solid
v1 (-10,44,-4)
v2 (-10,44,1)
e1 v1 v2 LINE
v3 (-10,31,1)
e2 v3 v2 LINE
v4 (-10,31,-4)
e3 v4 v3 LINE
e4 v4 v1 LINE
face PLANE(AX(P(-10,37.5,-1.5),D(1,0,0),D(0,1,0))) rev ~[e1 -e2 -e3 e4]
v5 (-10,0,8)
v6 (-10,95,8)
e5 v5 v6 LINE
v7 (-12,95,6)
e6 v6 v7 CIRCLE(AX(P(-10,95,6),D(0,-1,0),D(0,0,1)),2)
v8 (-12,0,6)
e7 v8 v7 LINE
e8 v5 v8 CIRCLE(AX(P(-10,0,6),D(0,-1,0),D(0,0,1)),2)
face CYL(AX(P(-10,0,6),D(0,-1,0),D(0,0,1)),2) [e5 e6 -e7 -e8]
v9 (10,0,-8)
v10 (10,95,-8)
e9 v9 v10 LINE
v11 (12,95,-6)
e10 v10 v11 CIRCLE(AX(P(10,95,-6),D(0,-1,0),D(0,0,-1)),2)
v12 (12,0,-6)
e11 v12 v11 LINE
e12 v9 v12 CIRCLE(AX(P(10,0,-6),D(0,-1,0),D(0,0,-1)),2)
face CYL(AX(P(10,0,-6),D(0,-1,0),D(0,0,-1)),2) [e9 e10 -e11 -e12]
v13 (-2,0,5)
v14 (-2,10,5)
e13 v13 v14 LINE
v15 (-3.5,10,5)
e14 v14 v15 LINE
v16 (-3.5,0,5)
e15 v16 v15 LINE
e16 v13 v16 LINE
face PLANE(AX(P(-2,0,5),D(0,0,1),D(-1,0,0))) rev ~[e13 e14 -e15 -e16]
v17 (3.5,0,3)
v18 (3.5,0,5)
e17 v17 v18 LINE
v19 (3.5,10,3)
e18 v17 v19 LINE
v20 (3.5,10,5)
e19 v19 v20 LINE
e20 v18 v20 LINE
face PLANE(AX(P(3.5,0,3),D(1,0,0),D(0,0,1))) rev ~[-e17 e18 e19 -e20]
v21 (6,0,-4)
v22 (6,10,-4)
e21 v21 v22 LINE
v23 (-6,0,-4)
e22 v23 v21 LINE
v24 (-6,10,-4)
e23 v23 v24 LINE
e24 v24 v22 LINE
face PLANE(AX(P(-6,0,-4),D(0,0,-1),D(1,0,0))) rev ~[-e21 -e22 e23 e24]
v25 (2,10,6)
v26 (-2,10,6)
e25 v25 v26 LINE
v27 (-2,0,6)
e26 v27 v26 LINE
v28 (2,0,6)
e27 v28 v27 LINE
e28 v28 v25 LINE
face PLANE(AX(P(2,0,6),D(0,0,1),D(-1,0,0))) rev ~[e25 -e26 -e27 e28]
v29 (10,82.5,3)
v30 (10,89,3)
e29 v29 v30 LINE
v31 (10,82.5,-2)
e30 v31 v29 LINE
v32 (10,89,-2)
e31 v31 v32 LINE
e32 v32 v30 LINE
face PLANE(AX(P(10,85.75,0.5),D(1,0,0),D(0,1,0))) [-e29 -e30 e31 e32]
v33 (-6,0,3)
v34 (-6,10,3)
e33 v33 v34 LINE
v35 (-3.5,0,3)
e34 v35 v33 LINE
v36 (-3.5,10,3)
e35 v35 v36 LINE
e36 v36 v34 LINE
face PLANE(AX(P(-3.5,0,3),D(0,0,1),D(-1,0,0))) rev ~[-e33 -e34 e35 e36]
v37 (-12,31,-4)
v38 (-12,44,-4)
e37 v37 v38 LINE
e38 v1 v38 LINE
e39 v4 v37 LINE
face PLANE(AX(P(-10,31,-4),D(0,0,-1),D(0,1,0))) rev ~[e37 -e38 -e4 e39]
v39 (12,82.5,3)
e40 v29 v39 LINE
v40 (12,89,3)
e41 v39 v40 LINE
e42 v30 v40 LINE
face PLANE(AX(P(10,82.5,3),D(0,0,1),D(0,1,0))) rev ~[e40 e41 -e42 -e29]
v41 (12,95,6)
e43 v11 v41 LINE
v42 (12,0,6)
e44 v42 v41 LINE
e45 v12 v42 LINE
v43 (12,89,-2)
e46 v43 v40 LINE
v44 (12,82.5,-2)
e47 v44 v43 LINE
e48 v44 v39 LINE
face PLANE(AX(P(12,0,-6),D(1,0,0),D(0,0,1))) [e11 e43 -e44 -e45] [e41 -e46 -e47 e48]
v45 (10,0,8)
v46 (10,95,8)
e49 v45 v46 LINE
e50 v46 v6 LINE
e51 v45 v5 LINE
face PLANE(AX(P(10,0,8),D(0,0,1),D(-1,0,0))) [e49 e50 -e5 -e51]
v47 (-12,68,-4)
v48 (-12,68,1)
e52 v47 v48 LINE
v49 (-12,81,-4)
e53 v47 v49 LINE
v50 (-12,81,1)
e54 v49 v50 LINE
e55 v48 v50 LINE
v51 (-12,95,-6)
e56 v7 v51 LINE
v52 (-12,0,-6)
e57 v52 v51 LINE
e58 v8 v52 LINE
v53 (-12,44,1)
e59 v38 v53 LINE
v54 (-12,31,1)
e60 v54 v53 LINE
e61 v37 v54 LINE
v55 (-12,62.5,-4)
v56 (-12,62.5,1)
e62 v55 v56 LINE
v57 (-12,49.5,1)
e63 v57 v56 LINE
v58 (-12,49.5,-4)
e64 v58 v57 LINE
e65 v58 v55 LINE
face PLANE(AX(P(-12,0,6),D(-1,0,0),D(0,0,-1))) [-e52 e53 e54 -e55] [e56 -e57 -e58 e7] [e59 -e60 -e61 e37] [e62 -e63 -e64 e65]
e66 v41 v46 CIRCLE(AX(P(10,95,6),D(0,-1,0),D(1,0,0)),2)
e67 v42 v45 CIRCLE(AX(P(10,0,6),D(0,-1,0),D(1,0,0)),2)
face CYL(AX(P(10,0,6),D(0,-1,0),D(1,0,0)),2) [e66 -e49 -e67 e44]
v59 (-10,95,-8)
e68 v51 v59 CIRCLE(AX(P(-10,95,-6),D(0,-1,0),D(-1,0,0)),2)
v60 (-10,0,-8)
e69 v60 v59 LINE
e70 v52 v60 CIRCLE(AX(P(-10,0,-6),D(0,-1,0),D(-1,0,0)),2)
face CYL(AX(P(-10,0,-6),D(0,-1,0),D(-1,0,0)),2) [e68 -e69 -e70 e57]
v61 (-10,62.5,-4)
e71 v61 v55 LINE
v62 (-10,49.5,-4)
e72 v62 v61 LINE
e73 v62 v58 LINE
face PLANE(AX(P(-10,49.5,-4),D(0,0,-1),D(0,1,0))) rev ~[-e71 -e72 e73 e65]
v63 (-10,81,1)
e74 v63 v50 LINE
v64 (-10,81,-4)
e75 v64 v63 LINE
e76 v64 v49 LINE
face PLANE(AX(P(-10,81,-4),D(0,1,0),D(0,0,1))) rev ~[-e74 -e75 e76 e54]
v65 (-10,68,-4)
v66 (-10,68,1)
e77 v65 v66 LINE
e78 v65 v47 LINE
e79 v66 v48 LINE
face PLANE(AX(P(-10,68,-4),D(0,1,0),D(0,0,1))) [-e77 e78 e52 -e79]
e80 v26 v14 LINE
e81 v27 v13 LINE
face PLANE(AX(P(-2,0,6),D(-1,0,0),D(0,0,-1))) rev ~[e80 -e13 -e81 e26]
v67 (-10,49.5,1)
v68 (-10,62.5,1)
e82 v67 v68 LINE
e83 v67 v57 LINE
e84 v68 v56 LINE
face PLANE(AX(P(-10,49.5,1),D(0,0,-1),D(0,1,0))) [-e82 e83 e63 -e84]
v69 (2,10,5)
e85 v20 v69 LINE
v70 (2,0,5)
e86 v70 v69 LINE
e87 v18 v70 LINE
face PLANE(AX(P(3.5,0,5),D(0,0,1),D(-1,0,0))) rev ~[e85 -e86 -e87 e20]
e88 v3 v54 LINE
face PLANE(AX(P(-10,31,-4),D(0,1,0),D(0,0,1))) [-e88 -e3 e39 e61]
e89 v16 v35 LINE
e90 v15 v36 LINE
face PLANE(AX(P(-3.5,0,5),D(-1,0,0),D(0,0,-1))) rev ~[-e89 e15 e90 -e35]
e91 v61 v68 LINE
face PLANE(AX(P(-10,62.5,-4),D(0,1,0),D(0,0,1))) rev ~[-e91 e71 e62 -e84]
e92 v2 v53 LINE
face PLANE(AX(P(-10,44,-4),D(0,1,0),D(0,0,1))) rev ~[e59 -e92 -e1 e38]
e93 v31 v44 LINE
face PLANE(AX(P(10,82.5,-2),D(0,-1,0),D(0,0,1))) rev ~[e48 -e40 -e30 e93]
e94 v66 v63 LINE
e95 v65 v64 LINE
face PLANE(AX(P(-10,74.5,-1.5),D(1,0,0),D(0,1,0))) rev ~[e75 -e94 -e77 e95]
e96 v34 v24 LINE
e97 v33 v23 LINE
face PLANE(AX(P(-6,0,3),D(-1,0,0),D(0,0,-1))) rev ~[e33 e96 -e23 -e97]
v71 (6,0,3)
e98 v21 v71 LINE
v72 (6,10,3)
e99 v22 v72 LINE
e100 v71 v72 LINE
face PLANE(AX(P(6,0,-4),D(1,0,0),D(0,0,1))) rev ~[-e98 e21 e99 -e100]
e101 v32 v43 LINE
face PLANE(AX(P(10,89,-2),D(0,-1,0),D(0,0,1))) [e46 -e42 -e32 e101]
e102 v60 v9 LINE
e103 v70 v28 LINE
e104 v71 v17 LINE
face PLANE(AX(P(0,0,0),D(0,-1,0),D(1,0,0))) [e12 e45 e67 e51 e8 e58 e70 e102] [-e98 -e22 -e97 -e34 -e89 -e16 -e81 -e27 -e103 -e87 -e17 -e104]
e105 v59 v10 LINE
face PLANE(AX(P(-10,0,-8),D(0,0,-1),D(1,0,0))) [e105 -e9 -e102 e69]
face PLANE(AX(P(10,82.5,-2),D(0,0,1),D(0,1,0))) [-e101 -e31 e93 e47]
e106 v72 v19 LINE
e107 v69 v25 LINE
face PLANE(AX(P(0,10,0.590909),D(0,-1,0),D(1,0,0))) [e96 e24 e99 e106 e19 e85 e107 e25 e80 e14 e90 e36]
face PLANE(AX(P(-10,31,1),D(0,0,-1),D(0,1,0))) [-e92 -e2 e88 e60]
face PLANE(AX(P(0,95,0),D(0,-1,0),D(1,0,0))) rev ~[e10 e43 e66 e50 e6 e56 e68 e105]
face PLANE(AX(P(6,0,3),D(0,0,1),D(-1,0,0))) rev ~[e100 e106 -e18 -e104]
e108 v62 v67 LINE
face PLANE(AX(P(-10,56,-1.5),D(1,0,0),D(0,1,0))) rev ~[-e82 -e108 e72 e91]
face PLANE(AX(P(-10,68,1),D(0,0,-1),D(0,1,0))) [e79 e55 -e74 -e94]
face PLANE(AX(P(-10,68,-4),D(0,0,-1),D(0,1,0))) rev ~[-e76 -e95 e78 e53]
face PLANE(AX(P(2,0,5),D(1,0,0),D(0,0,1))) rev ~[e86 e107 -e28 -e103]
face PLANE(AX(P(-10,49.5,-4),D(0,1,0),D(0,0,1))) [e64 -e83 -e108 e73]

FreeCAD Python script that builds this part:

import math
import FreeCAD as App
import Part
import Sketcher

V = App.Vector
Q = App.Units.Quantity


def add_polygon(sketch, points):
    """Adds a closed chain of lines whose ends are joined by coincident constraints."""
    first, n = sketch.GeometryCount, len(points)
    for a, b in zip(points, points[1:] + points[:1]):
        sketch.addGeometry(Part.LineSegment(App.Vector(*a, 0), App.Vector(*b, 0)), False)
    for i in range(n):
        sketch.addConstraint(Sketcher.Constraint("Coincident", first + i, 2, first + (i + 1) % n, 1))

doc = App.newDocument("Part")
params = doc.addObject("Spreadsheet::Sheet", "Params")
for row, (alias, value) in enumerate([
    ("sketch1_radius", "2 mm"),
    ("sketch1_width", "20 mm"),
    ("sketch1_height", "12 mm"),
    ("pad1_length", "95 mm"),
    ("sketch2_width", "4 mm"),
    ("sketch2_width2", "12 mm"),
    ("sketch2_height", "1 mm"),
    ("sketch2_height2", "2 mm"),
    ("sketch2_height3", "7 mm"),
    ("pocket1_length", "10 mm"),
    ("sketch3_height", "5 mm"),
    ("sketch3_width", "6.5 mm"),
    ("pocket2_length", "2 mm"),
    ("sketch4_width", "13 mm"),
    ("sketch4_height", "5 mm"),
    ("pocket3_length", "2 mm"),
], start=1):
    params.set(f"A{row}", alias)
    params.set(f"B{row}", "=" + value)
    params.setAlias(f"B{row}", alias)

body = doc.addObject("PartDesign::Body", "Body")

# Sketch on XZ plane
sketch1 = doc.addObject("Sketcher::SketchObject", "Sketch")
body.addObject(sketch1)
sketch1.AttachmentSupport = (doc.XZ_Plane, [""])
sketch1.MapMode = "FlatFace"
sketch1.addGeometry(Part.LineSegment(V(-10, -8, 0), V(10, -8, 0)), False)
sketch1.addGeometry(Part.ArcOfCircle(Part.Circle(V(10, -6, 0), V(0, 0, 1), 2), math.radians(-90), math.radians(0)), False)
sketch1.addGeometry(Part.LineSegment(V(12, -6, 0), V(12, 6, 0)), False)
sketch1.addGeometry(Part.ArcOfCircle(Part.Circle(V(10, 6, 0), V(0, 0, 1), 2), math.radians(0), math.radians(90)), False)
sketch1.addGeometry(Part.LineSegment(V(10, 8, 0), V(-10, 8, 0)), False)
sketch1.addGeometry(Part.ArcOfCircle(Part.Circle(V(-10, 6, 0), V(0, 0, 1), 2), math.radians(90), math.radians(180)), False)
sketch1.addGeometry(Part.LineSegment(V(-12, 6, 0), V(-12, -6, 0)), False)
sketch1.addGeometry(Part.ArcOfCircle(Part.Circle(V(-10, -6, 0), V(0, 0, 1), 2), math.radians(180), math.radians(270)), False)
sketch1.addConstraint(Sketcher.Constraint("Tangent", 0, 2, 1, 1))
sketch1.addConstraint(Sketcher.Constraint("Tangent", 1, 2, 2, 1))
sketch1.addConstraint(Sketcher.Constraint("Tangent", 2, 2, 3, 1))
sketch1.addConstraint(Sketcher.Constraint("Tangent", 3, 2, 4, 1))
sketch1.addConstraint(Sketcher.Constraint("Tangent", 4, 2, 5, 1))
sketch1.addConstraint(Sketcher.Constraint("Tangent", 5, 2, 6, 1))
sketch1.addConstraint(Sketcher.Constraint("Tangent", 6, 2, 7, 1))
sketch1.addConstraint(Sketcher.Constraint("Tangent", 7, 2, 0, 1))
sketch1.addConstraint(Sketcher.Constraint("Horizontal", 0))
sketch1.addConstraint(Sketcher.Constraint("Vertical", 2))
sketch1.addConstraint(Sketcher.Constraint("Horizontal", 4))
sketch1.addConstraint(Sketcher.Constraint("Vertical", 6))
sketch1.addConstraint(Sketcher.Constraint("Equal", 1, 3))
sketch1.addConstraint(Sketcher.Constraint("Equal", 3, 5))
sketch1.addConstraint(Sketcher.Constraint("Equal", 5, 7))
sketch1.addConstraint(Sketcher.Constraint("Symmetric", 1, 3, 5, 3, -1, 1))
sketch1.addConstraint(Sketcher.Constraint("Radius", 1, Q("2 mm")))
sketch1.addConstraint(Sketcher.Constraint("DistanceX", 0, 1, 0, 2, Q("20 mm")))
sketch1.addConstraint(Sketcher.Constraint("DistanceY", 2, 1, 2, 2, Q("12 mm")))
sketch1.setExpression("Constraints[16]", "Params.sketch1_radius")
sketch1.setExpression("Constraints[17]", "Params.sketch1_width")
sketch1.setExpression("Constraints[18]", "Params.sketch1_height")
pad1 = doc.addObject("PartDesign::Pad", "Pad")
body.addObject(pad1)
pad1.Profile = sketch1
pad1.setExpression("Length", "Params.pad1_length")
pad1.Reversed = True

# Sketch on XZ plane
sketch2 = doc.addObject("Sketcher::SketchObject", "Sketch001")
body.addObject(sketch2)
sketch2.AttachmentSupport = (doc.XZ_Plane, [""])
sketch2.MapMode = "FlatFace"
add_polygon(sketch2, [(2, 6), (-2, 6), (-2, 5), (-3.5, 5), (-3.5, 3), (-6, 3), (-6, -4), (6, -4), (6, 3), (3.5, 3), (3.5, 5), (2, 5)])  # lines 0-11
sketch2.addConstraint(Sketcher.Constraint("Horizontal", 0))
sketch2.addConstraint(Sketcher.Constraint("Vertical", 1))
sketch2.addConstraint(Sketcher.Constraint("Horizontal", 2))
sketch2.addConstraint(Sketcher.Constraint("Vertical", 3))
sketch2.addConstraint(Sketcher.Constraint("Horizontal", 4))
sketch2.addConstraint(Sketcher.Constraint("Vertical", 5))
sketch2.addConstraint(Sketcher.Constraint("Horizontal", 6))
sketch2.addConstraint(Sketcher.Constraint("Vertical", 7))
sketch2.addConstraint(Sketcher.Constraint("Horizontal", 8))
sketch2.addConstraint(Sketcher.Constraint("Vertical", 9))
sketch2.addConstraint(Sketcher.Constraint("Horizontal", 10))
sketch2.addConstraint(Sketcher.Constraint("Vertical", 11))
sketch2.addConstraint(Sketcher.Constraint("Symmetric", 4, 2, 7, 2, -2))
sketch2.addConstraint(Sketcher.Constraint("Symmetric", 2, 2, 9, 2, -2))
sketch2.addConstraint(Sketcher.Constraint("Equal", 2, 10))
sketch2.addConstraint(Sketcher.Constraint("DistanceX", 0, 2, 0, 1, Q("4 mm")))
sketch2.addConstraint(Sketcher.Constraint("DistanceX", 6, 1, 6, 2, Q("12 mm")))
sketch2.addConstraint(Sketcher.Constraint("DistanceY", 1, 2, 1, 1, Q("1 mm")))
sketch2.addConstraint(Sketcher.Constraint("DistanceY", 3, 2, 3, 1, Q("2 mm")))
sketch2.addConstraint(Sketcher.Constraint("DistanceY", 5, 2, 5, 1, Q("7 mm")))
sketch2.addConstraint(Sketcher.Constraint("DistanceX", 2, 2, 2, 1, Q("1.5 mm")))
sketch2.addConstraint(Sketcher.Constraint("DistanceY", -1, 1, 0, 2, Q("6 mm")))
sketch2.setExpression("Constraints[27]", "Params.sketch2_width")
sketch2.setExpression("Constraints[28]", "Params.sketch2_width2")
sketch2.setExpression("Constraints[29]", "Params.sketch2_height")
sketch2.setExpression("Constraints[30]", "Params.sketch2_height2")
sketch2.setExpression("Constraints[31]", "Params.sketch2_height3")
pocket1 = doc.addObject("PartDesign::Pocket", "Pocket")
body.addObject(pocket1)
pocket1.Profile = sketch2
pocket1.setExpression("Length", "Params.pocket1_length")

# Sketch on YZ plane
sketch3 = doc.addObject("Sketcher::SketchObject", "Sketch002")
body.addObject(sketch3)
sketch3.AttachmentSupport = (doc.YZ_Plane, [""])
sketch3.MapMode = "FlatFace"
sketch3.AttachmentOffset = App.Placement(V(0, 0, 10), App.Rotation())
add_polygon(sketch3, [(82, 3), (82, -2), (89, -2), (89, 3)])  # lines 0-3
sketch3.addConstraint(Sketcher.Constraint("Vertical", 0))
sketch3.addConstraint(Sketcher.Constraint("Horizontal", 1))
sketch3.addConstraint(Sketcher.Constraint("Vertical", 2))
sketch3.addConstraint(Sketcher.Constraint("Horizontal", 3))
sketch3.addConstraint(Sketcher.Constraint("DistanceY", 0, 2, 0, 1, Q("5 mm")))
sketch3.addConstraint(Sketcher.Constraint("DistanceX", 1, 1, 1, 2, Q("6.5 mm")))
sketch3.addConstraint(Sketcher.Constraint("DistanceY", 0, 2, -1, 1, Q("2 mm")))
sketch3.addConstraint(Sketcher.Constraint("DistanceX", -1, 1, 1, 2, Q("89 mm")))
sketch3.setExpression("Constraints[8]", "Params.sketch3_height")
sketch3.setExpression("Constraints[9]", "Params.sketch3_width")
pocket2 = doc.addObject("PartDesign::Pocket", "Pocket001")
body.addObject(pocket2)
pocket2.Profile = sketch3
pocket2.setExpression("Length", "Params.pocket2_length")
pocket2.Reversed = True

# Sketch on YZ plane
sketch4 = doc.addObject("Sketcher::SketchObject", "Sketch003")
body.addObject(sketch4)
sketch4.AttachmentSupport = (doc.YZ_Plane, [""])
sketch4.MapMode = "FlatFace"
sketch4.AttachmentOffset = App.Placement(V(0, 0, -10), App.Rotation())
add_polygon(sketch4, [(68, 1), (68, -4), (81, -4), (81, 1)])  # lines 0-3
add_polygon(sketch4, [(50, 1), (50, -4), (62, -4), (62, 1)])  # lines 4-7
add_polygon(sketch4, [(31, 1), (31, -4), (44, -4), (44, 1)])  # lines 8-11
sketch4.addConstraint(Sketcher.Constraint("Vertical", 0))
sketch4.addConstraint(Sketcher.Constraint("Horizontal", 1))
sketch4.addConstraint(Sketcher.Constraint("Vertical", 2))
sketch4.addConstraint(Sketcher.Constraint("Horizontal", 3))
sketch4.addConstraint(Sketcher.Constraint("Vertical", 4))
sketch4.addConstraint(Sketcher.Constraint("Horizontal", 5))
sketch4.addConstraint(Sketcher.Constraint("Vertical", 6))
sketch4.addConstraint(Sketcher.Constraint("Horizontal", 7))
sketch4.addConstraint(Sketcher.Constraint("Vertical", 8))
sketch4.addConstraint(Sketcher.Constraint("Horizontal", 9))
sketch4.addConstraint(Sketcher.Constraint("Vertical", 10))
sketch4.addConstraint(Sketcher.Constraint("Horizontal", 11))
sketch4.addConstraint(Sketcher.Constraint("Horizontal", 1, 2, 4, 2))
sketch4.addConstraint(Sketcher.Constraint("Horizontal", 3, 2, 6, 2))
sketch4.addConstraint(Sketcher.Constraint("Horizontal", 5, 2, 8, 2))
sketch4.addConstraint(Sketcher.Constraint("Horizontal", 7, 2, 10, 2))
sketch4.addConstraint(Sketcher.Constraint("Equal", 3, 5))
sketch4.addConstraint(Sketcher.Constraint("Equal", 7, 9))
sketch4.addConstraint(Sketcher.Constraint("DistanceX", 1, 1, 1, 2, Q("13 mm")))
sketch4.addConstraint(Sketcher.Constraint("DistanceY", 0, 2, 0, 1, Q("5 mm")))
sketch4.addConstraint(Sketcher.Constraint("DistanceX", -1, 1, 0, 2, Q("68 mm")))
sketch4.addConstraint(Sketcher.Constraint("DistanceY", 0, 2, -1, 1, Q("4 mm")))
sketch4.addConstraint(Sketcher.Constraint("DistanceX", -1, 1, 8, 2, Q("31 mm")))
sketch4.addConstraint(Sketcher.Constraint("DistanceX", -1, 1, 4, 2, Q("49.5 mm")))
sketch4.setExpression("Constraints[30]", "Params.sketch4_width")
sketch4.setExpression("Constraints[31]", "Params.sketch4_height")
pocket3 = doc.addObject("PartDesign::Pocket", "Pocket002")
body.addObject(pocket3)
pocket3.Profile = sketch4
pocket3.setExpression("Length", "Params.pocket3_length")

doc.recompute()
